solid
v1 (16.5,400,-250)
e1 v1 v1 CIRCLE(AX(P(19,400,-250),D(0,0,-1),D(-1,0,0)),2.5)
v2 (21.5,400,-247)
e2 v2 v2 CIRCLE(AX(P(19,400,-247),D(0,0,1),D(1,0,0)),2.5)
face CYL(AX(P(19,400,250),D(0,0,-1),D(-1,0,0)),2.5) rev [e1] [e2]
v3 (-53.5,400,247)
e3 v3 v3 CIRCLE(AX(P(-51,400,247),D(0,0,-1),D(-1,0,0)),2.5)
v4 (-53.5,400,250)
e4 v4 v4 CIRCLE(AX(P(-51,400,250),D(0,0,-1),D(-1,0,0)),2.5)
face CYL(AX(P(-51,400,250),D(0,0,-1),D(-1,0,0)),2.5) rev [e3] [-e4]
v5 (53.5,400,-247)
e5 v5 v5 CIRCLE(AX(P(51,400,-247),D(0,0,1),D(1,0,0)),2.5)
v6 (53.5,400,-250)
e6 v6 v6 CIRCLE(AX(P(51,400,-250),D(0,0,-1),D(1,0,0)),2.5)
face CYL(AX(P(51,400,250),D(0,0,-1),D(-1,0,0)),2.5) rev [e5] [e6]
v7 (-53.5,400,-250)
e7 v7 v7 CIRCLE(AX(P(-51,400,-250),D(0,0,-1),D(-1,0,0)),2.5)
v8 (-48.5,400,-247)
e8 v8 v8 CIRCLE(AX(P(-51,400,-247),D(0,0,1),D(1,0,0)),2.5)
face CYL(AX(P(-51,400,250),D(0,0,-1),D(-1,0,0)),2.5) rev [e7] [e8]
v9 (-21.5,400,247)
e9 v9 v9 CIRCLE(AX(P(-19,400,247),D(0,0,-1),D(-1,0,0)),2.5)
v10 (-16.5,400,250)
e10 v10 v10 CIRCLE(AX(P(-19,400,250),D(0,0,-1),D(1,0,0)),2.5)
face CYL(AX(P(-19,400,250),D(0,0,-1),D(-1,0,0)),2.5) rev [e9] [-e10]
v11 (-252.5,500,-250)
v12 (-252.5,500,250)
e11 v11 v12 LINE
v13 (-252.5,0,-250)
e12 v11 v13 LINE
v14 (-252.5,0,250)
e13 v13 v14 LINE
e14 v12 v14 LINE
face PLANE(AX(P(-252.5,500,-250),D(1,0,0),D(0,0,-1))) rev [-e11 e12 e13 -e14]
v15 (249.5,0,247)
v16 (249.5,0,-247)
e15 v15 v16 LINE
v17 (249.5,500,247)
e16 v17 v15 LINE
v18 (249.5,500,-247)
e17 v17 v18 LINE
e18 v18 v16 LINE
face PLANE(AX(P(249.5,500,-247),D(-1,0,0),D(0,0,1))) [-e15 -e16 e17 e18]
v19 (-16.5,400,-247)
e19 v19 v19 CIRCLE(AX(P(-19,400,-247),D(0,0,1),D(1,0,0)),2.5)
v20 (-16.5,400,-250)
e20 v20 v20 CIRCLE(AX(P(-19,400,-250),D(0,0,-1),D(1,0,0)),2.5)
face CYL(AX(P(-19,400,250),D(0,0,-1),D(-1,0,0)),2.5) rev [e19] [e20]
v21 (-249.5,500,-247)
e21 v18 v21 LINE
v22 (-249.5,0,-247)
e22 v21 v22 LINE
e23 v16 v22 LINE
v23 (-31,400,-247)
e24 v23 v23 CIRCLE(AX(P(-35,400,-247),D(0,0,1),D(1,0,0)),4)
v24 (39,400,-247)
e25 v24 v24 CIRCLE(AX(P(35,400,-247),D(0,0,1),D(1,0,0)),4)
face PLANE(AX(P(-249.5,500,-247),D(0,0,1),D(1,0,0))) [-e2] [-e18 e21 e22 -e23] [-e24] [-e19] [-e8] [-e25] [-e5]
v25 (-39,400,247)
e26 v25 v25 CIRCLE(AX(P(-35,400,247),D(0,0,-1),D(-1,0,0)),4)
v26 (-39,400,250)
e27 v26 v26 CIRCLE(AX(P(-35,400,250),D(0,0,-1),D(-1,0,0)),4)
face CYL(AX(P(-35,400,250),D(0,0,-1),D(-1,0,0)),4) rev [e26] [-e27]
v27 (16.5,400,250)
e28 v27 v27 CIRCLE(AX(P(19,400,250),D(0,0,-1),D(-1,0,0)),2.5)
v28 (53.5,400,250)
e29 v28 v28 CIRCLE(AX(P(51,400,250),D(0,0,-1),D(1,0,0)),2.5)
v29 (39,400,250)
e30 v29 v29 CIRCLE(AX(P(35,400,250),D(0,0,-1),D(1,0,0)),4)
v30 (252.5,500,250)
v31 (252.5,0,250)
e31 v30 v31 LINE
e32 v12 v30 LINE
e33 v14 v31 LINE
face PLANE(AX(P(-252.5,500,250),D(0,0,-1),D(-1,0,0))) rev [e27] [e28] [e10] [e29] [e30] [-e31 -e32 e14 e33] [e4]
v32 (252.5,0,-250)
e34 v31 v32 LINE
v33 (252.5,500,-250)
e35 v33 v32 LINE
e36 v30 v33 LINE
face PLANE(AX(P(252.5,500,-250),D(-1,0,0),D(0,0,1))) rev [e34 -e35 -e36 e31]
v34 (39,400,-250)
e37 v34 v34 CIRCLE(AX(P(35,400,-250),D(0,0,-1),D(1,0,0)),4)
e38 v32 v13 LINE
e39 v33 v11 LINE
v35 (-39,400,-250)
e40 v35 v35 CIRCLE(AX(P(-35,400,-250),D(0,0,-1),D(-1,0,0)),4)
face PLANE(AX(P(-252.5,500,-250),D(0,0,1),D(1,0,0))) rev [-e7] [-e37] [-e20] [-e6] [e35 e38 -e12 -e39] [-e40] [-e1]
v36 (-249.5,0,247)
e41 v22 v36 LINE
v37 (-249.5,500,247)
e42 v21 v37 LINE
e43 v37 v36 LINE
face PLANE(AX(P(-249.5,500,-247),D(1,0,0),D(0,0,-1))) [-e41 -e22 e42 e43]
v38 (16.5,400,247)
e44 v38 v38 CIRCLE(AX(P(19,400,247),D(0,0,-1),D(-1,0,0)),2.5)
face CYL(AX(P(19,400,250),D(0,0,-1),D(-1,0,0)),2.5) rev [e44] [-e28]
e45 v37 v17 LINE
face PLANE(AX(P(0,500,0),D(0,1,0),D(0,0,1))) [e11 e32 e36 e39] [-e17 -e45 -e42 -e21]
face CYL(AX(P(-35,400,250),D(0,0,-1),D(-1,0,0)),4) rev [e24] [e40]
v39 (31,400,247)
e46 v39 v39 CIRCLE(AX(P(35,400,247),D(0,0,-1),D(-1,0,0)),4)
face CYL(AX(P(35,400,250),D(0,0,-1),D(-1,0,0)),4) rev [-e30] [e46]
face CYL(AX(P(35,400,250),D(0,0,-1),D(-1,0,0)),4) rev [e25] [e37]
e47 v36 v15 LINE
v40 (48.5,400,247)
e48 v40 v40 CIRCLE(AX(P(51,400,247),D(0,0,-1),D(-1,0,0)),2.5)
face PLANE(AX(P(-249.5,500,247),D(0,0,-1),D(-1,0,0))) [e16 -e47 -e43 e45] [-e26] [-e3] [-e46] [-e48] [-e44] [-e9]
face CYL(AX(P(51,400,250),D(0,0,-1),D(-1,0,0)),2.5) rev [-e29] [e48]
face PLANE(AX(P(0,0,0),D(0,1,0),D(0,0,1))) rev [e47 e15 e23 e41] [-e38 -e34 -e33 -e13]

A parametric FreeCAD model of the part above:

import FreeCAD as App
import Part
import Sketcher

V = App.Vector
Q = App.Units.Quantity


def add_polygon(sketch, points):
    """Adds a closed chain of lines whose ends are joined by coincident constraints."""
    first, n = sketch.GeometryCount, len(points)
    for a, b in zip(points, points[1:] + points[:1]):
        sketch.addGeometry(Part.LineSegment(App.Vector(*a, 0), App.Vector(*b, 0)), False)
    for i in range(n):
        sketch.addConstraint(Sketcher.Constraint("Coincident", first + i, 2, first + (i + 1) % n, 1))

doc = App.newDocument("Part")
body = doc.addObject("PartDesign::Body", "Body")

sketch1 = body.newObject("Sketcher::SketchObject", "Sketch")
sketch1.AttachmentSupport = (doc.getObject("XZ_Plane"), [""])
sketch1.MapMode = "FlatFace"
add_polygon(sketch1, [(-252.5, -250), (-252.5, 250), (252.5, 250), (252.5, -250)])
add_polygon(sketch1, [(249.5, 247), (-249.5, 247), (-249.5, -247), (249.5, -247)])
sketch1.addConstraint([
    Sketcher.Constraint("Vertical", 0),
    Sketcher.Constraint("Horizontal", 1),
    Sketcher.Constraint("Vertical", 2),
    Sketcher.Constraint("Horizontal", 3),
    Sketcher.Constraint("Horizontal", 4),
    Sketcher.Constraint("Vertical", 5),
    Sketcher.Constraint("Horizontal", 6),
    Sketcher.Constraint("Vertical", 7),
    Sketcher.Constraint("Symmetric", 0, 2, 2, 2, -1, 1),
    Sketcher.Constraint("Symmetric", 4, 2, 6, 2, -1, 1),
    Sketcher.Constraint("DistanceX", 1, 1, 1, 2, Q("505 mm")),
    Sketcher.Constraint("DistanceX", 4, 2, 4, 1, Q("499 mm")),
    Sketcher.Constraint("DistanceY", 0, 1, 0, 2, Q("500 mm")),
    Sketcher.Constraint("DistanceY", 5, 2, 5, 1, Q("494 mm")),
])
pad1 = body.newObject("PartDesign::Pad", "Pad")
pad1.Profile = sketch1
pad1.Length = 500
pad1.Reversed = True

sketch2 = body.newObject("Sketcher::SketchObject", "Sketch001")
sketch2.AttachmentSupport = (doc.getObject("XY_Plane"), [""])
sketch2.MapMode = "FlatFace"
sketch2.AttachmentOffset = App.Placement(V(0, 0, -250), App.Rotation())
sketch2.addGeometry([
    Part.Circle(V(-35, 400, 0), V(0, 0, 1), 4),
    Part.Circle(V(35, 400, 0), V(0, 0, 1), 4),
    Part.Circle(V(19, 400, 0), V(0, 0, 1), 2.5),
    Part.Circle(V(51, 400, 0), V(0, 0, 1), 2.5),
    Part.Circle(V(-19, 400, 0), V(0, 0, 1), 2.5),
    Part.Circle(V(-51, 400, 0), V(0, 0, 1), 2.5),
], False)
sketch2.addConstraint([
    Sketcher.Constraint("Equal", 0, 1),
    Sketcher.Constraint("Equal", 2, 3),
    Sketcher.Constraint("Equal", 3, 4),
    Sketcher.Constraint("Equal", 4, 5),
    Sketcher.Constraint("Symmetric", 0, 3, 1, 3, -2),
    Sketcher.Constraint("Symmetric", 2, 3, 4, 3, -2),
    Sketcher.Constraint("Symmetric", 3, 3, 5, 3, -2),
    Sketcher.Constraint("Horizontal", 1, 3, 2, 3),
    Sketcher.Constraint("Horizontal", 2, 3, 3, 3),
    Sketcher.Constraint("Diameter", 0, Q("8 mm")),
    Sketcher.Constraint("Diameter", 2, Q("5 mm")),
    Sketcher.Constraint("DistanceX", 0, 3, -1, 1, Q("35 mm")),
    Sketcher.Constraint("DistanceY", -1, 1, 0, 3, Q("400 mm")),
    Sketcher.Constraint("DistanceX", -1, 1, 2, 3, Q("19 mm")),
    Sketcher.Constraint("DistanceX", -1, 1, 3, 3, Q("51 mm")),
])
pocket1 = body.newObject("PartDesign::Pocket", "Pocket")
pocket1.Profile = sketch2
pocket1.Type = "ThroughAll"
pocket1.Midplane = True

doc.recompute()
